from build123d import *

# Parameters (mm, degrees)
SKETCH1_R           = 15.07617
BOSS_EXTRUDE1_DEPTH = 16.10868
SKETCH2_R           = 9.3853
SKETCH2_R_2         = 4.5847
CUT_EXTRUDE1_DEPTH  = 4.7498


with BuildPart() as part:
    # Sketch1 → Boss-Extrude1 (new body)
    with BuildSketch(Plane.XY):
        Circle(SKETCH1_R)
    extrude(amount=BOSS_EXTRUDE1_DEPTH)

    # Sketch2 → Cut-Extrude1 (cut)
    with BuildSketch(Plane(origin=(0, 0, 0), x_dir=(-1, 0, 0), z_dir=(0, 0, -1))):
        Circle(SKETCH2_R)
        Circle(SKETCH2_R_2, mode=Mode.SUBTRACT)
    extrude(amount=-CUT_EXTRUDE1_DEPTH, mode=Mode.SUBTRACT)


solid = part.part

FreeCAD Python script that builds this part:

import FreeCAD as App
import Part
import Sketcher

V = App.Vector
Q = App.Units.Quantity

doc = App.newDocument("Part")
body = doc.addObject("PartDesign::Body", "Body")

# Sketch on XY plane
sketch1 = body.newObject("Sketcher::SketchObject", "Sketch")
sketch1.AttachmentSupport = (doc.getObject("XY_Plane"), [""])
sketch1.MapMode = "FlatFace"
sketch1.addGeometry(Part.Circle(V(0, 0, 0), V(0, 0, 1), 15), False)
sketch1.addConstraint(Sketcher.Constraint("Coincident", 0, 3, -1, 1))
sketch1.addConstraint(Sketcher.Constraint("Diameter", 0, Q("1.1871 in")))
pad1 = body.newObject("PartDesign::Pad", "Pad")
pad1.Profile = sketch1
pad1.Length = Q("0.6342 in")

# Sketch on XY plane
sketch2 = body.newObject("Sketcher::SketchObject", "Sketch001")
sketch2.AttachmentSupport = (doc.getObject("XY_Plane"), [""])
sketch2.MapMode = "FlatFace"
sketch2.addGeometry(Part.Circle(V(0, 0, 0), V(0, 0, 1), 9.4), False)
sketch2.addGeometry(Part.Circle(V(0, 0, 0), V(0, 0, 1), 4.6), False)
sketch2.addConstraint(Sketcher.Constraint("Coincident", 0, 3, -1, 1))
sketch2.addConstraint(Sketcher.Constraint("Coincident", 1, 3, -1, 1))
sketch2.addConstraint(Sketcher.Constraint("Diameter", 0, Q("0.739 in")))
sketch2.addConstraint(Sketcher.Constraint("Diameter", 1, Q("0.361 in")))
pocket1 = body.newObject("PartDesign::Pocket", "Pocket")
pocket1.Profile = sketch2
pocket1.Length = Q("0.187 in")
pocket1.Reversed = True

doc.recompute()
